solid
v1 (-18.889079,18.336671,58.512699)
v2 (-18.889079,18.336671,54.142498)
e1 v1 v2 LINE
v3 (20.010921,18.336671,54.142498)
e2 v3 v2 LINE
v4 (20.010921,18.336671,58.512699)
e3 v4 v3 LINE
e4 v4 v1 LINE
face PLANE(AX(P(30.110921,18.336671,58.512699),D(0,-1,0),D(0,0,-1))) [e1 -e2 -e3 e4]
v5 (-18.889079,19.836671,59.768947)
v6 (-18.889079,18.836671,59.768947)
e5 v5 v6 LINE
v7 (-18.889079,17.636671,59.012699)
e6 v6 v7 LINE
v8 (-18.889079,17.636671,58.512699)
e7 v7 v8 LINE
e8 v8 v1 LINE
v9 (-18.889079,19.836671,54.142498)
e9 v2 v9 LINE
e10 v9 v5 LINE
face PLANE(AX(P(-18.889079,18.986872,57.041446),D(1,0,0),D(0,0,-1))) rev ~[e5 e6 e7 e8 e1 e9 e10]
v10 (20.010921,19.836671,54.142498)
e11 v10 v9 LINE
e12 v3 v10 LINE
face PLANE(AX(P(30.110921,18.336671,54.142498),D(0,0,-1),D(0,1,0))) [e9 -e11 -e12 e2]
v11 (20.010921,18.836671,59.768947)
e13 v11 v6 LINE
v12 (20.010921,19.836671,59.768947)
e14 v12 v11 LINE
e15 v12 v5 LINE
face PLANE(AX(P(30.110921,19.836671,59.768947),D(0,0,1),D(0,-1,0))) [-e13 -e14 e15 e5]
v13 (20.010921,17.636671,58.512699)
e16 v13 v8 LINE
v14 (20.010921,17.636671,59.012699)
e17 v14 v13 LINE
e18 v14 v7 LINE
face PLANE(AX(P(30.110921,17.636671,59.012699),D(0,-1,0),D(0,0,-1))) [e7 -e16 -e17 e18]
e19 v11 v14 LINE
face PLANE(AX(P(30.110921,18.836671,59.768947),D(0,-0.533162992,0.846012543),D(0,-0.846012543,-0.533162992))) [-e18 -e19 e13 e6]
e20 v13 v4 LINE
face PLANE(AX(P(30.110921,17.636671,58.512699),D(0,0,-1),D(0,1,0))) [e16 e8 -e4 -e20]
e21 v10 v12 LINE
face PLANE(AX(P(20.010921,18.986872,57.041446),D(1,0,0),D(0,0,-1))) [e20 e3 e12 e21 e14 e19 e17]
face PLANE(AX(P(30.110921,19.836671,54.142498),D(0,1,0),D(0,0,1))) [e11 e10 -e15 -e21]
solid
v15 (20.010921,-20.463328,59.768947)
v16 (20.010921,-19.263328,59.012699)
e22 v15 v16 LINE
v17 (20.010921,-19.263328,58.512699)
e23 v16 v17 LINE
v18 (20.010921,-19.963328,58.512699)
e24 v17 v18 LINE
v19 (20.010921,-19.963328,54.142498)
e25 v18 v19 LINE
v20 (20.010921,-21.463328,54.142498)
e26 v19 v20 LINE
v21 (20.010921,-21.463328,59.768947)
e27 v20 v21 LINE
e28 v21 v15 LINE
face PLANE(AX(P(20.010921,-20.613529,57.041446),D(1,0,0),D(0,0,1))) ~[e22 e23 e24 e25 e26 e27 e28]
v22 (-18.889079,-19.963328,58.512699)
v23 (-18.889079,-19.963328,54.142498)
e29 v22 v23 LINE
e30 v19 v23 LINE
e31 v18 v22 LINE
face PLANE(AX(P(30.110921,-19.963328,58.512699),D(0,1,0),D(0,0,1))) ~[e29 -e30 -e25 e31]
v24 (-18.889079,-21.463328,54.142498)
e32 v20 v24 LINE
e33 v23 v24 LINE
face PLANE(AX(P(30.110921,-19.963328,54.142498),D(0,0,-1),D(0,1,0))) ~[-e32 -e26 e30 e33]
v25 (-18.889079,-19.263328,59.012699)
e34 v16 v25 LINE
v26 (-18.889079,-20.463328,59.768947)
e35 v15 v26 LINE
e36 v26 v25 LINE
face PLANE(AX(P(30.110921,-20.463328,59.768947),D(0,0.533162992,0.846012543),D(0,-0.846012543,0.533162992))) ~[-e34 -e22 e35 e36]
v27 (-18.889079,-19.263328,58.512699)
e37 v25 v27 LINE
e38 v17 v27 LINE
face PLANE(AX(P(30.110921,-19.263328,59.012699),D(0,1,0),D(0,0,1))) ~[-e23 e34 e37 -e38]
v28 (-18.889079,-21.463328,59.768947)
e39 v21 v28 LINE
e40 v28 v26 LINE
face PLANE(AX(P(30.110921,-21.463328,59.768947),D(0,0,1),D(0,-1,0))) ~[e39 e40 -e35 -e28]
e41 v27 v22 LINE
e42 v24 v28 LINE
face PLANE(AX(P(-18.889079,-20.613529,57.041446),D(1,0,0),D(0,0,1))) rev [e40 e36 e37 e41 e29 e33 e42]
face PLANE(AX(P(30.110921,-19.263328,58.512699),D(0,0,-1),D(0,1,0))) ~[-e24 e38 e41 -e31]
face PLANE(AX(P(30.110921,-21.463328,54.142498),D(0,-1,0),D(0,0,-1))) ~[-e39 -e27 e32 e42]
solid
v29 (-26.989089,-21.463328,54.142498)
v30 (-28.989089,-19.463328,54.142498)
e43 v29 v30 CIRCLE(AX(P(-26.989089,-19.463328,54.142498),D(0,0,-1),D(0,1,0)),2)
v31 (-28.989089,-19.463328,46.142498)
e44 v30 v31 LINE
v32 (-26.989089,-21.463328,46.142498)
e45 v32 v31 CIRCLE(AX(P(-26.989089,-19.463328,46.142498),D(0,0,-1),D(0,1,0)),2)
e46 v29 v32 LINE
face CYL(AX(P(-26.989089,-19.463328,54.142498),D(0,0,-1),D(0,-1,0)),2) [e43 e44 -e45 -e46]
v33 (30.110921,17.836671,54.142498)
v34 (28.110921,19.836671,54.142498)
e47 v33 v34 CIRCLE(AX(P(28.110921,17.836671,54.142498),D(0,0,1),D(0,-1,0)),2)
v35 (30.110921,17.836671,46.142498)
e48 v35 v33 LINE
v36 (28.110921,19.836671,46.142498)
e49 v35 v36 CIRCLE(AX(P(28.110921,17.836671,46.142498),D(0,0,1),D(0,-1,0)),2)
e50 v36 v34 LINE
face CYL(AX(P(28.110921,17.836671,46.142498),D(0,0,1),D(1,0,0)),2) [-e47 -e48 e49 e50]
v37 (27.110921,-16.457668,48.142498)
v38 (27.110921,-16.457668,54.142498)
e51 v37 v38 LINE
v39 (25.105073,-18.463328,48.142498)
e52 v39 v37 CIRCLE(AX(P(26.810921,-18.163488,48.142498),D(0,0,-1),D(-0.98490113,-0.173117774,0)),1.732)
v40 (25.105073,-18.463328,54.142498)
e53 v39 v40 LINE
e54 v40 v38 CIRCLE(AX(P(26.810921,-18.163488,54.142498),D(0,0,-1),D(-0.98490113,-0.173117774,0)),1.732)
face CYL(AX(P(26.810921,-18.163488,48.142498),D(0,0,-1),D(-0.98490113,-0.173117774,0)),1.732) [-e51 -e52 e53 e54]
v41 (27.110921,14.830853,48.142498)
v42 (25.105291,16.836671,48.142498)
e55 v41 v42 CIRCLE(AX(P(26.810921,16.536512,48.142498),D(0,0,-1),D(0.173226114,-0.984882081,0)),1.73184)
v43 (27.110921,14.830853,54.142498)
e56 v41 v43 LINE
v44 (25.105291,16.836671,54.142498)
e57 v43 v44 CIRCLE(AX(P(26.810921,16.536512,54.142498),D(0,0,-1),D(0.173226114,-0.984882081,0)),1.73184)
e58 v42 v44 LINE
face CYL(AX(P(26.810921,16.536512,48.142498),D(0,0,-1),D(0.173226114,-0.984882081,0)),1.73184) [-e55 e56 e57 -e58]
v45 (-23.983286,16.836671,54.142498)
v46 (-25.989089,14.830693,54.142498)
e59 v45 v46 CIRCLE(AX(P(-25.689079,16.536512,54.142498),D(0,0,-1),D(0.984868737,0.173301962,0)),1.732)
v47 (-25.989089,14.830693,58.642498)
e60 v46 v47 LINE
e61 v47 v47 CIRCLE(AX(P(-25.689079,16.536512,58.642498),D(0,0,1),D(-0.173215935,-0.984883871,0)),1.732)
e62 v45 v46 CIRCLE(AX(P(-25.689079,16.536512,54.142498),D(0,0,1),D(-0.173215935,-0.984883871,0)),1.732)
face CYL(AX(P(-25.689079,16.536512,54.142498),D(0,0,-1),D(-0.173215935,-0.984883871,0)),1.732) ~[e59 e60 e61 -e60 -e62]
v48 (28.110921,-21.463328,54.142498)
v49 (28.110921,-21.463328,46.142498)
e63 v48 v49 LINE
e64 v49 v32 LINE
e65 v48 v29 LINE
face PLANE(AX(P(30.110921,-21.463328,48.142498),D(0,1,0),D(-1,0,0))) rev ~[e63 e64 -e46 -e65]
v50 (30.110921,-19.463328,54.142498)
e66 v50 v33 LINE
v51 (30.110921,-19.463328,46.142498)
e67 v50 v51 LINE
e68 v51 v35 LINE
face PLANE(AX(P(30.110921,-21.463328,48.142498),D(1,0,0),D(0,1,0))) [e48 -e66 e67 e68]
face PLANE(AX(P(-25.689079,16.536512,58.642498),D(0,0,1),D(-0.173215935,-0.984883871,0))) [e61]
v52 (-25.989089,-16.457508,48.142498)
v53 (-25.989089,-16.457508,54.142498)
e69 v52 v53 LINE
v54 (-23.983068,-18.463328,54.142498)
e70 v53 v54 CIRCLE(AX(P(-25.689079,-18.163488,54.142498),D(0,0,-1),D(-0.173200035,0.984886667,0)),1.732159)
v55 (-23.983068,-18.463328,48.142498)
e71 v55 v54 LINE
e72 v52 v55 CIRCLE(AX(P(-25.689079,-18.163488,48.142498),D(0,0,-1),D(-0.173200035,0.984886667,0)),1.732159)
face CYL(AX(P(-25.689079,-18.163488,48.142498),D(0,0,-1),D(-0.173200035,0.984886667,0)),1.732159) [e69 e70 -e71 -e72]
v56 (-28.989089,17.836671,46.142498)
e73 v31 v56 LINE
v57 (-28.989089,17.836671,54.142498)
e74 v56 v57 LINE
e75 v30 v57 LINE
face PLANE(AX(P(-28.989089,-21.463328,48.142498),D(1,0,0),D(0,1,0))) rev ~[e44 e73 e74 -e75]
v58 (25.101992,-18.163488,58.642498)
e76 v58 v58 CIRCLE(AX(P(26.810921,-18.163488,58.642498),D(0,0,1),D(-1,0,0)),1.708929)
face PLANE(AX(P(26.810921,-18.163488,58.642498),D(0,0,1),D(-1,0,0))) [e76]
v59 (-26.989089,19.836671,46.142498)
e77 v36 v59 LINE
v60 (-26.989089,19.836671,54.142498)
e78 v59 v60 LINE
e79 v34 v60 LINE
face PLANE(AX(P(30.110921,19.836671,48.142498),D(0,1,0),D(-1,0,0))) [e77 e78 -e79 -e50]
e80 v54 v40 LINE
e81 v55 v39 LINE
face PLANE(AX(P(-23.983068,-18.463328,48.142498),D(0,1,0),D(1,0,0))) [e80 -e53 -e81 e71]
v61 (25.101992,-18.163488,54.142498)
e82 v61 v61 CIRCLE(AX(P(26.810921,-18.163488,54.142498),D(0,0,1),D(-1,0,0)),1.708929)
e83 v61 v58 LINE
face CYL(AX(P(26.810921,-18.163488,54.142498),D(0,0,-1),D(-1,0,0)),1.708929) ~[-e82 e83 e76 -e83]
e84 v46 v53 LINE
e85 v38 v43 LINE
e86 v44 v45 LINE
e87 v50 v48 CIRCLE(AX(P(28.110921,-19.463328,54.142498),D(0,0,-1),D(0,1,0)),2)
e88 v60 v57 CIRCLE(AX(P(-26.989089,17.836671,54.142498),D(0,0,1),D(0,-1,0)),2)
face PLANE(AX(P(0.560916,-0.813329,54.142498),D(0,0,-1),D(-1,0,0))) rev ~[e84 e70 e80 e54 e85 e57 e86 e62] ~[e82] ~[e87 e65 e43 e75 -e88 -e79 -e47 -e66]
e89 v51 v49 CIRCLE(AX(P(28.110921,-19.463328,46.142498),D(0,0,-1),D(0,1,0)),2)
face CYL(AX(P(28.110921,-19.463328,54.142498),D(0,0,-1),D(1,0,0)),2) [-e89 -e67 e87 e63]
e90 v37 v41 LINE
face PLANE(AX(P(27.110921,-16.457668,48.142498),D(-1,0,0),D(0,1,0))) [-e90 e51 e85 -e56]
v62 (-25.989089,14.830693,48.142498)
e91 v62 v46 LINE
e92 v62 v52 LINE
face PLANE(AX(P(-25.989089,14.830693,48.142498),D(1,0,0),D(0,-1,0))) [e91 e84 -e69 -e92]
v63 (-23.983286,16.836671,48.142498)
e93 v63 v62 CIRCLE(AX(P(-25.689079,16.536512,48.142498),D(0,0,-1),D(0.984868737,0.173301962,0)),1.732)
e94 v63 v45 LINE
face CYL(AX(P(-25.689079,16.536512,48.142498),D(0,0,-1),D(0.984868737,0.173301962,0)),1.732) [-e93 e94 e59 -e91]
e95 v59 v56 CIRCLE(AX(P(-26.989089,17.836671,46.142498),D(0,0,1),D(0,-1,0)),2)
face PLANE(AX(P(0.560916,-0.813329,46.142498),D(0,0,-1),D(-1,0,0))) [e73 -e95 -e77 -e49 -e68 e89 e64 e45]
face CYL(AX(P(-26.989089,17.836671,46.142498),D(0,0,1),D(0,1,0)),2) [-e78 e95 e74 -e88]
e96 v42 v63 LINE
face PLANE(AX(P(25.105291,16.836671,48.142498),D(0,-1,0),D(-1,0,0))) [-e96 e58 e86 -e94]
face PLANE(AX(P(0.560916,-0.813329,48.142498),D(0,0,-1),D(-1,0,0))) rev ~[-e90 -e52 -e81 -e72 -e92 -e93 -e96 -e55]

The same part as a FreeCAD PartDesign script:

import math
import FreeCAD as App
import Part
import Sketcher
from FreeCAD import Vector


def edges_at(feature, points):
    """Names of the edges that pass closest to the given points."""
    edges = feature.Shape.Edges
    near = lambda p: min(range(len(edges)), key=lambda i: edges[i].distToShape(Part.Vertex(*p))[0])
    return sorted({f"Edge{near(p) + 1}" for p in points})

doc = App.newDocument("Part")
params = doc.addObject("Spreadsheet::Sheet", "Params")
for row, (alias, value) in enumerate([
    ("sketch1_height", "41.299999 mm"),
    ("pad1_length", "6 mm"),
    ("sketch2_height", "41.299999 mm"),
    ("pad2_length", "2 mm"),
    ("pad3_length", "4.5 mm"),
    ("fillet_radius", "2 mm"),
    ("sketch4_width", "1 mm"),
    ("sketch4_width2", "0.7 mm"),
    ("sketch4_width3", "1.5 mm"),
    ("sketch4_height", "0.5 mm"),
    ("pad4_length", "49 mm"),
    ("sketch5_width", "1 mm"),
    ("sketch5_width2", "0.7 mm"),
    ("sketch5_width3", "1.5 mm"),
    ("sketch5_height", "0.5 mm"),
    ("pocket1_length", "10.1 mm"),
], start=1):
    params.set(f"A{row}", alias)
    params.set(f"B{row}", "=" + value)
    params.setAlias(f"B{row}", alias)

body = doc.addObject("PartDesign::Body", "Body")

# Sketch on XY plane
sketch1 = doc.addObject("Sketcher::SketchObject", "Sketch")
body.addObject(sketch1)
sketch1.AttachmentSupport = (doc.XY_Plane, [""])
sketch1.MapMode = "FlatFace"
sketch1.AttachmentOffset = App.Placement(Vector(0, 0, 48.142498), App.Rotation())
sketch1.addGeometry([
    Part.LineSegment(Vector(30.1, 19.8, 0), Vector(30.1, -21.5, 0)),  # 0
    Part.LineSegment(Vector(30.1, -21.5, 0), Vector(-29, -21.5, 0)),  # 1
    Part.LineSegment(Vector(-29, -21.5, 0), Vector(-29, 19.8, 0)),  # 2
    Part.LineSegment(Vector(-29, 19.8, 0), Vector(30.1, 19.8, 0)),  # 3
    Part.ArcOfCircle(Part.Circle(Vector(26.8, -18.2, 0), Vector(0, 0, 1), 1.7), math.radians(80), math.radians(190)),  # 4
    Part.LineSegment(Vector(27.1, -16.5, 0), Vector(27.1, 14.8, 0)),  # 5
    Part.ArcOfCircle(Part.Circle(Vector(26.8, 16.5, 0), Vector(0, 0, 1), 1.7), math.radians(170), math.radians(280)),  # 6
    Part.LineSegment(Vector(25.1, 16.8, 0), Vector(-24, 16.8, 0)),  # 7
    Part.ArcOfCircle(Part.Circle(Vector(-25.7, 16.5, 0), Vector(0, 0, 1), 1.7), math.radians(-100), math.radians(10)),  # 8
    Part.LineSegment(Vector(-26, 14.8, 0), Vector(-26, -16.5, 0)),  # 9
    Part.ArcOfCircle(Part.Circle(Vector(-25.7, -18.2, 0), Vector(0, 0, 1), 1.7), math.radians(-10), math.radians(100)),  # 10
    Part.LineSegment(Vector(-24, -18.5, 0), Vector(25.1, -18.5, 0)),  # 11
], False)
sketch1.addConstraint([
    Sketcher.Constraint("Coincident", 0, 2, 1, 1),
    Sketcher.Constraint("Coincident", 1, 2, 2, 1),
    Sketcher.Constraint("Coincident", 2, 2, 3, 1),
    Sketcher.Constraint("Coincident", 3, 2, 0, 1),
    Sketcher.Constraint("Coincident", 4, 1, 5, 1),
    Sketcher.Constraint("Coincident", 5, 2, 6, 2),
    Sketcher.Constraint("Coincident", 6, 1, 7, 1),
    Sketcher.Constraint("Coincident", 7, 2, 8, 2),
    Sketcher.Constraint("Coincident", 8, 1, 9, 1),
    Sketcher.Constraint("Coincident", 9, 2, 10, 2),
    Sketcher.Constraint("Coincident", 10, 1, 11, 1),
    Sketcher.Constraint("Coincident", 11, 2, 4, 2),
    Sketcher.Constraint("Vertical", 0),
    Sketcher.Constraint("Horizontal", 1),
    Sketcher.Constraint("Vertical", 2),
    Sketcher.Constraint("Horizontal", 3),
    Sketcher.Constraint("Vertical", 5),
    Sketcher.Constraint("Horizontal", 7),
    Sketcher.Constraint("Vertical", 9),
    Sketcher.Constraint("Horizontal", 11),
    Sketcher.Constraint("Equal", 4, 8),
    Sketcher.Constraint("Horizontal", 6, 3, 8, 3),
    Sketcher.Constraint("Horizontal", 4, 3, 10, 3),
    Sketcher.Constraint("Vertical", 4, 3, 6, 3),
    Sketcher.Constraint("Vertical", 8, 3, 10, 3),
    Sketcher.Constraint("DistanceY", 0, 2, 0, 1, 41.299999),
    Sketcher.Constraint("Radius", 4, 1.732),
    Sketcher.Constraint("DistanceX", 4, 1, 0, 2, 3.0),
    Sketcher.Constraint("DistanceY", 6, 1, 3, 2, 3.0),
    Sketcher.Constraint("DistanceX", 2, 2, 8, 1, 3.0),
    Sketcher.Constraint("DistanceY", 1, 2, 10, 1, 3.0),
    Sketcher.Constraint("DistanceY", 4, 3, 6, 3, 34.7),
    Sketcher.Constraint("DistanceX", 8, 3, 6, 3, 52.5),
    Sketcher.Constraint("DistanceX", 4, 3, 0, 2, 3.3),
    Sketcher.Constraint("Radius", 6, 1.73184),
    Sketcher.Constraint("Radius", 10, 1.732159),
    Sketcher.Constraint("DistanceY", 9, 2, 9, 1, 31.288201),
    Sketcher.Constraint("DistanceX", 11, 1, 11, 2, 49.088141),
    Sketcher.Constraint("DistanceX", -1, 1, 4, 3, 26.810921),
    Sketcher.Constraint("DistanceY", 4, 3, -1, 1, 18.163488),
])
sketch1.setExpression("Constraints[25]", "Params.sketch1_height")
pad1 = doc.addObject("PartDesign::Pad", "Pad")
body.addObject(pad1)
pad1.Profile = sketch1
pad1.setExpression("Length", "Params.pad1_length")

# Sketch on XY plane
sketch2 = doc.addObject("Sketcher::SketchObject", "Sketch001")
body.addObject(sketch2)
sketch2.AttachmentSupport = (doc.XY_Plane, [""])
sketch2.MapMode = "FlatFace"
sketch2.AttachmentOffset = App.Placement(Vector(0, 0, 48.142498), App.Rotation())
sketch2.addGeometry([
    Part.LineSegment(Vector(30, 20, 0), Vector(30, -21, 0)),
    Part.LineSegment(Vector(30, -21, 0), Vector(-29, -21, 0)),
    Part.LineSegment(Vector(-29, -21, 0), Vector(-29, 20, 0)),
    Part.LineSegment(Vector(-29, 20, 0), Vector(30, 20, 0)),
], False)
sketch2.addConstraint([
    Sketcher.Constraint("Coincident", 0, 2, 1, 1),
    Sketcher.Constraint("Coincident", 1, 2, 2, 1),
    Sketcher.Constraint("Coincident", 2, 2, 3, 1),
    Sketcher.Constraint("Coincident", 3, 2, 0, 1),
    Sketcher.Constraint("Vertical", 0),
    Sketcher.Constraint("Horizontal", 1),
    Sketcher.Constraint("Vertical", 2),
    Sketcher.Constraint("Horizontal", 3),
    Sketcher.Constraint("DistanceY", 0, 2, 0, 1, 41.299999),
    Sketcher.Constraint("DistanceX", 1, 2, 1, 1, 59.10001),
    Sketcher.Constraint("DistanceX", -1, 1, 0, 2, 30.110921),
    Sketcher.Constraint("DistanceY", 0, 2, -1, 1, 21.463328),
])
sketch2.setExpression("Constraints[8]", "Params.sketch2_height")
pad2 = doc.addObject("PartDesign::Pad", "Pad001")
body.addObject(pad2)
pad2.Profile = sketch2
pad2.setExpression("Length", "Params.pad2_length")
pad2.Reversed = True

# Sketch on XY plane
sketch3 = doc.addObject("Sketcher::SketchObject", "Sketch002")
body.addObject(sketch3)
sketch3.AttachmentSupport = (doc.XY_Plane, [""])
sketch3.MapMode = "FlatFace"
sketch3.AttachmentOffset = App.Placement(Vector(0, 0, 54.142498), App.Rotation())
sketch3.addGeometry([
    Part.Circle(Vector(26.8, -18.2, 0), Vector(0, 0, 1), 1.7),
    Part.Circle(Vector(-25.7, 16.5, 0), Vector(0, 0, 1), 1.7),
], False)
sketch3.addConstraint([
    Sketcher.Constraint("Diameter", 1, 3.464),
    Sketcher.Constraint("DistanceX", 1, 3, 0, 3, 52.5),
    Sketcher.Constraint("DistanceY", 0, 3, 1, 3, 34.7),
    Sketcher.Constraint("Diameter", 0, 3.417858),
    Sketcher.Constraint("DistanceX", -1, 1, 0, 3, 26.810921),
    Sketcher.Constraint("DistanceY", 0, 3, -1, 1, 18.163488),
])
pad3 = doc.addObject("PartDesign::Pad", "Pad002")
body.addObject(pad3)
pad3.Profile = sketch3
pad3.setExpression("Length", "Params.pad3_length")
doc.recompute()

fillet = doc.addObject("PartDesign::Fillet", "Fillet")
body.addObject(fillet)
fillet.Base = (pad3, edges_at(pad3, [
    (30.111, -21.463, 50.142),
    (30.111, 19.837, 50.142),
    (-28.989, 19.837, 50.142),
    (-28.989, -21.463, 50.142),
]))
fillet.setExpression("Radius", "Params.fillet_radius")
body2 = doc.addObject("PartDesign::Body", "Body001")

# Sketch on YZ plane
sketch4 = doc.addObject("Sketcher::SketchObject", "Sketch003")
body2.addObject(sketch4)
sketch4.AttachmentSupport = (doc.getObject("YZ_Plane001"), [""])
sketch4.MapMode = "FlatFace"
sketch4.AttachmentOffset = App.Placement(Vector(0, 0, 30.110921), App.Rotation())
sketch4.addGeometry([
    Part.LineSegment(Vector(19.8, 54.1, 0), Vector(19.8, 59.8, 0)),  # 0
    Part.LineSegment(Vector(19.8, 59.8, 0), Vector(18.8, 59.8, 0)),  # 1
    Part.LineSegment(Vector(18.8, 59.8, 0), Vector(17.6, 59, 0)),  # 2
    Part.LineSegment(Vector(17.6, 59, 0), Vector(17.6, 58.5, 0)),  # 3
    Part.LineSegment(Vector(17.6, 58.5, 0), Vector(18.3, 58.5, 0)),  # 4
    Part.LineSegment(Vector(18.3, 58.5, 0), Vector(18.3, 54.1, 0)),  # 5
    Part.LineSegment(Vector(18.3, 54.1, 0), Vector(19.8, 54.1, 0)),  # 6
], False)
sketch4.addConstraint([
    Sketcher.Constraint("Coincident", 0, 2, 1, 1),
    Sketcher.Constraint("Coincident", 1, 2, 2, 1),
    Sketcher.Constraint("Coincident", 2, 2, 3, 1),
    Sketcher.Constraint("Coincident", 3, 2, 4, 1),
    Sketcher.Constraint("Coincident", 4, 2, 5, 1),
    Sketcher.Constraint("Coincident", 5, 2, 6, 1),
    Sketcher.Constraint("Coincident", 6, 2, 0, 1),
    Sketcher.Constraint("Vertical", 0),
    Sketcher.Constraint("Horizontal", 1),
    Sketcher.Constraint("Vertical", 3),
    Sketcher.Constraint("Horizontal", 4),
    Sketcher.Constraint("Vertical", 5),
    Sketcher.Constraint("Horizontal", 6),
    Sketcher.Constraint("DistanceX", 1, 2, 1, 1, 1.0),
    Sketcher.Constraint("DistanceX", 4, 1, 4, 2, 0.7),
    Sketcher.Constraint("DistanceX", 6, 1, 6, 2, 1.5),
    Sketcher.Constraint("DistanceY", 3, 2, 3, 1, 0.5),
    Sketcher.Constraint("DistanceY", 5, 2, 5, 1, 4.370202),
    Sketcher.Constraint("DistanceY", 0, 1, 0, 2, 5.62645),
    Sketcher.Constraint("DistanceY", -1, 1, 2, 2, 59.012699),
    Sketcher.Constraint("DistanceX", -1, 1, 0, 2, 19.836671),
])
sketch4.setExpression("Constraints[13]", "Params.sketch4_width")
sketch4.setExpression("Constraints[14]", "Params.sketch4_width2")
sketch4.setExpression("Constraints[15]", "Params.sketch4_width3")
sketch4.setExpression("Constraints[16]", "Params.sketch4_height")
pad4 = doc.addObject("PartDesign::Pad", "Pad003")
body2.addObject(pad4)
pad4.Profile = sketch4
pad4.setExpression("Length", "Params.pad4_length")
pad4.Reversed = True

# Sketch on YZ plane
sketch5 = doc.addObject("Sketcher::SketchObject", "Sketch004")
body2.addObject(sketch5)
sketch5.AttachmentSupport = (doc.getObject("YZ_Plane001"), [""])
sketch5.MapMode = "FlatFace"
sketch5.AttachmentOffset = App.Placement(Vector(0, 0, 30.110921), App.Rotation())
sketch5.addGeometry([
    Part.LineSegment(Vector(19.8, 54.1, 0), Vector(19.8, 59.8, 0)),  # 0
    Part.LineSegment(Vector(19.8, 59.8, 0), Vector(18.8, 59.8, 0)),  # 1
    Part.LineSegment(Vector(18.8, 59.8, 0), Vector(17.6, 59, 0)),  # 2
    Part.LineSegment(Vector(17.6, 59, 0), Vector(17.6, 58.5, 0)),  # 3
    Part.LineSegment(Vector(17.6, 58.5, 0), Vector(18.3, 58.5, 0)),  # 4
    Part.LineSegment(Vector(18.3, 58.5, 0), Vector(18.3, 54.1, 0)),  # 5
    Part.LineSegment(Vector(18.3, 54.1, 0), Vector(19.8, 54.1, 0)),  # 6
], False)
sketch5.addConstraint([
    Sketcher.Constraint("Coincident", 0, 2, 1, 1),
    Sketcher.Constraint("Coincident", 1, 2, 2, 1),
    Sketcher.Constraint("Coincident", 2, 2, 3, 1),
    Sketcher.Constraint("Coincident", 3, 2, 4, 1),
    Sketcher.Constraint("Coincident", 4, 2, 5, 1),
    Sketcher.Constraint("Coincident", 5, 2, 6, 1),
    Sketcher.Constraint("Coincident", 6, 2, 0, 1),
    Sketcher.Constraint("Vertical", 0),
    Sketcher.Constraint("Horizontal", 1),
    Sketcher.Constraint("Vertical", 3),
    Sketcher.Constraint("Horizontal", 4),
    Sketcher.Constraint("Vertical", 5),
    Sketcher.Constraint("Horizontal", 6),
    Sketcher.Constraint("DistanceX", 1, 2, 1, 1, 1.0),
    Sketcher.Constraint("DistanceX", 4, 1, 4, 2, 0.7),
    Sketcher.Constraint("DistanceX", 6, 1, 6, 2, 1.5),
    Sketcher.Constraint("DistanceY", 3, 2, 3, 1, 0.5),
    Sketcher.Constraint("DistanceY", 5, 2, 5, 1, 4.370202),
    Sketcher.Constraint("DistanceY", 0, 1, 0, 2, 5.62645),
    Sketcher.Constraint("DistanceY", -1, 1, 2, 2, 59.012699),
    Sketcher.Constraint("DistanceX", -1, 1, 0, 2, 19.836671),
])
sketch5.setExpression("Constraints[13]", "Params.sketch5_width")
sketch5.setExpression("Constraints[14]", "Params.sketch5_width2")
sketch5.setExpression("Constraints[15]", "Params.sketch5_width3")
sketch5.setExpression("Constraints[16]", "Params.sketch5_height")
pocket1 = doc.addObject("PartDesign::Pocket", "Pocket")
body2.addObject(pocket1)
pocket1.Profile = sketch5
pocket1.setExpression("Length", "Params.pocket1_length")
body3 = doc.addObject("PartDesign::Body", "Body002")
doc.recompute()

mirroring = doc.addObject("Part::Mirroring", "Mirroring")
mirroring.Source = body2
mirroring.Base = Vector(0, -0.813329, 0)
mirroring.Normal = Vector(0, -1, 0)
body3.BaseFeature = mirroring
doc.recompute()
mirroring.Visibility = False

doc.recompute()
